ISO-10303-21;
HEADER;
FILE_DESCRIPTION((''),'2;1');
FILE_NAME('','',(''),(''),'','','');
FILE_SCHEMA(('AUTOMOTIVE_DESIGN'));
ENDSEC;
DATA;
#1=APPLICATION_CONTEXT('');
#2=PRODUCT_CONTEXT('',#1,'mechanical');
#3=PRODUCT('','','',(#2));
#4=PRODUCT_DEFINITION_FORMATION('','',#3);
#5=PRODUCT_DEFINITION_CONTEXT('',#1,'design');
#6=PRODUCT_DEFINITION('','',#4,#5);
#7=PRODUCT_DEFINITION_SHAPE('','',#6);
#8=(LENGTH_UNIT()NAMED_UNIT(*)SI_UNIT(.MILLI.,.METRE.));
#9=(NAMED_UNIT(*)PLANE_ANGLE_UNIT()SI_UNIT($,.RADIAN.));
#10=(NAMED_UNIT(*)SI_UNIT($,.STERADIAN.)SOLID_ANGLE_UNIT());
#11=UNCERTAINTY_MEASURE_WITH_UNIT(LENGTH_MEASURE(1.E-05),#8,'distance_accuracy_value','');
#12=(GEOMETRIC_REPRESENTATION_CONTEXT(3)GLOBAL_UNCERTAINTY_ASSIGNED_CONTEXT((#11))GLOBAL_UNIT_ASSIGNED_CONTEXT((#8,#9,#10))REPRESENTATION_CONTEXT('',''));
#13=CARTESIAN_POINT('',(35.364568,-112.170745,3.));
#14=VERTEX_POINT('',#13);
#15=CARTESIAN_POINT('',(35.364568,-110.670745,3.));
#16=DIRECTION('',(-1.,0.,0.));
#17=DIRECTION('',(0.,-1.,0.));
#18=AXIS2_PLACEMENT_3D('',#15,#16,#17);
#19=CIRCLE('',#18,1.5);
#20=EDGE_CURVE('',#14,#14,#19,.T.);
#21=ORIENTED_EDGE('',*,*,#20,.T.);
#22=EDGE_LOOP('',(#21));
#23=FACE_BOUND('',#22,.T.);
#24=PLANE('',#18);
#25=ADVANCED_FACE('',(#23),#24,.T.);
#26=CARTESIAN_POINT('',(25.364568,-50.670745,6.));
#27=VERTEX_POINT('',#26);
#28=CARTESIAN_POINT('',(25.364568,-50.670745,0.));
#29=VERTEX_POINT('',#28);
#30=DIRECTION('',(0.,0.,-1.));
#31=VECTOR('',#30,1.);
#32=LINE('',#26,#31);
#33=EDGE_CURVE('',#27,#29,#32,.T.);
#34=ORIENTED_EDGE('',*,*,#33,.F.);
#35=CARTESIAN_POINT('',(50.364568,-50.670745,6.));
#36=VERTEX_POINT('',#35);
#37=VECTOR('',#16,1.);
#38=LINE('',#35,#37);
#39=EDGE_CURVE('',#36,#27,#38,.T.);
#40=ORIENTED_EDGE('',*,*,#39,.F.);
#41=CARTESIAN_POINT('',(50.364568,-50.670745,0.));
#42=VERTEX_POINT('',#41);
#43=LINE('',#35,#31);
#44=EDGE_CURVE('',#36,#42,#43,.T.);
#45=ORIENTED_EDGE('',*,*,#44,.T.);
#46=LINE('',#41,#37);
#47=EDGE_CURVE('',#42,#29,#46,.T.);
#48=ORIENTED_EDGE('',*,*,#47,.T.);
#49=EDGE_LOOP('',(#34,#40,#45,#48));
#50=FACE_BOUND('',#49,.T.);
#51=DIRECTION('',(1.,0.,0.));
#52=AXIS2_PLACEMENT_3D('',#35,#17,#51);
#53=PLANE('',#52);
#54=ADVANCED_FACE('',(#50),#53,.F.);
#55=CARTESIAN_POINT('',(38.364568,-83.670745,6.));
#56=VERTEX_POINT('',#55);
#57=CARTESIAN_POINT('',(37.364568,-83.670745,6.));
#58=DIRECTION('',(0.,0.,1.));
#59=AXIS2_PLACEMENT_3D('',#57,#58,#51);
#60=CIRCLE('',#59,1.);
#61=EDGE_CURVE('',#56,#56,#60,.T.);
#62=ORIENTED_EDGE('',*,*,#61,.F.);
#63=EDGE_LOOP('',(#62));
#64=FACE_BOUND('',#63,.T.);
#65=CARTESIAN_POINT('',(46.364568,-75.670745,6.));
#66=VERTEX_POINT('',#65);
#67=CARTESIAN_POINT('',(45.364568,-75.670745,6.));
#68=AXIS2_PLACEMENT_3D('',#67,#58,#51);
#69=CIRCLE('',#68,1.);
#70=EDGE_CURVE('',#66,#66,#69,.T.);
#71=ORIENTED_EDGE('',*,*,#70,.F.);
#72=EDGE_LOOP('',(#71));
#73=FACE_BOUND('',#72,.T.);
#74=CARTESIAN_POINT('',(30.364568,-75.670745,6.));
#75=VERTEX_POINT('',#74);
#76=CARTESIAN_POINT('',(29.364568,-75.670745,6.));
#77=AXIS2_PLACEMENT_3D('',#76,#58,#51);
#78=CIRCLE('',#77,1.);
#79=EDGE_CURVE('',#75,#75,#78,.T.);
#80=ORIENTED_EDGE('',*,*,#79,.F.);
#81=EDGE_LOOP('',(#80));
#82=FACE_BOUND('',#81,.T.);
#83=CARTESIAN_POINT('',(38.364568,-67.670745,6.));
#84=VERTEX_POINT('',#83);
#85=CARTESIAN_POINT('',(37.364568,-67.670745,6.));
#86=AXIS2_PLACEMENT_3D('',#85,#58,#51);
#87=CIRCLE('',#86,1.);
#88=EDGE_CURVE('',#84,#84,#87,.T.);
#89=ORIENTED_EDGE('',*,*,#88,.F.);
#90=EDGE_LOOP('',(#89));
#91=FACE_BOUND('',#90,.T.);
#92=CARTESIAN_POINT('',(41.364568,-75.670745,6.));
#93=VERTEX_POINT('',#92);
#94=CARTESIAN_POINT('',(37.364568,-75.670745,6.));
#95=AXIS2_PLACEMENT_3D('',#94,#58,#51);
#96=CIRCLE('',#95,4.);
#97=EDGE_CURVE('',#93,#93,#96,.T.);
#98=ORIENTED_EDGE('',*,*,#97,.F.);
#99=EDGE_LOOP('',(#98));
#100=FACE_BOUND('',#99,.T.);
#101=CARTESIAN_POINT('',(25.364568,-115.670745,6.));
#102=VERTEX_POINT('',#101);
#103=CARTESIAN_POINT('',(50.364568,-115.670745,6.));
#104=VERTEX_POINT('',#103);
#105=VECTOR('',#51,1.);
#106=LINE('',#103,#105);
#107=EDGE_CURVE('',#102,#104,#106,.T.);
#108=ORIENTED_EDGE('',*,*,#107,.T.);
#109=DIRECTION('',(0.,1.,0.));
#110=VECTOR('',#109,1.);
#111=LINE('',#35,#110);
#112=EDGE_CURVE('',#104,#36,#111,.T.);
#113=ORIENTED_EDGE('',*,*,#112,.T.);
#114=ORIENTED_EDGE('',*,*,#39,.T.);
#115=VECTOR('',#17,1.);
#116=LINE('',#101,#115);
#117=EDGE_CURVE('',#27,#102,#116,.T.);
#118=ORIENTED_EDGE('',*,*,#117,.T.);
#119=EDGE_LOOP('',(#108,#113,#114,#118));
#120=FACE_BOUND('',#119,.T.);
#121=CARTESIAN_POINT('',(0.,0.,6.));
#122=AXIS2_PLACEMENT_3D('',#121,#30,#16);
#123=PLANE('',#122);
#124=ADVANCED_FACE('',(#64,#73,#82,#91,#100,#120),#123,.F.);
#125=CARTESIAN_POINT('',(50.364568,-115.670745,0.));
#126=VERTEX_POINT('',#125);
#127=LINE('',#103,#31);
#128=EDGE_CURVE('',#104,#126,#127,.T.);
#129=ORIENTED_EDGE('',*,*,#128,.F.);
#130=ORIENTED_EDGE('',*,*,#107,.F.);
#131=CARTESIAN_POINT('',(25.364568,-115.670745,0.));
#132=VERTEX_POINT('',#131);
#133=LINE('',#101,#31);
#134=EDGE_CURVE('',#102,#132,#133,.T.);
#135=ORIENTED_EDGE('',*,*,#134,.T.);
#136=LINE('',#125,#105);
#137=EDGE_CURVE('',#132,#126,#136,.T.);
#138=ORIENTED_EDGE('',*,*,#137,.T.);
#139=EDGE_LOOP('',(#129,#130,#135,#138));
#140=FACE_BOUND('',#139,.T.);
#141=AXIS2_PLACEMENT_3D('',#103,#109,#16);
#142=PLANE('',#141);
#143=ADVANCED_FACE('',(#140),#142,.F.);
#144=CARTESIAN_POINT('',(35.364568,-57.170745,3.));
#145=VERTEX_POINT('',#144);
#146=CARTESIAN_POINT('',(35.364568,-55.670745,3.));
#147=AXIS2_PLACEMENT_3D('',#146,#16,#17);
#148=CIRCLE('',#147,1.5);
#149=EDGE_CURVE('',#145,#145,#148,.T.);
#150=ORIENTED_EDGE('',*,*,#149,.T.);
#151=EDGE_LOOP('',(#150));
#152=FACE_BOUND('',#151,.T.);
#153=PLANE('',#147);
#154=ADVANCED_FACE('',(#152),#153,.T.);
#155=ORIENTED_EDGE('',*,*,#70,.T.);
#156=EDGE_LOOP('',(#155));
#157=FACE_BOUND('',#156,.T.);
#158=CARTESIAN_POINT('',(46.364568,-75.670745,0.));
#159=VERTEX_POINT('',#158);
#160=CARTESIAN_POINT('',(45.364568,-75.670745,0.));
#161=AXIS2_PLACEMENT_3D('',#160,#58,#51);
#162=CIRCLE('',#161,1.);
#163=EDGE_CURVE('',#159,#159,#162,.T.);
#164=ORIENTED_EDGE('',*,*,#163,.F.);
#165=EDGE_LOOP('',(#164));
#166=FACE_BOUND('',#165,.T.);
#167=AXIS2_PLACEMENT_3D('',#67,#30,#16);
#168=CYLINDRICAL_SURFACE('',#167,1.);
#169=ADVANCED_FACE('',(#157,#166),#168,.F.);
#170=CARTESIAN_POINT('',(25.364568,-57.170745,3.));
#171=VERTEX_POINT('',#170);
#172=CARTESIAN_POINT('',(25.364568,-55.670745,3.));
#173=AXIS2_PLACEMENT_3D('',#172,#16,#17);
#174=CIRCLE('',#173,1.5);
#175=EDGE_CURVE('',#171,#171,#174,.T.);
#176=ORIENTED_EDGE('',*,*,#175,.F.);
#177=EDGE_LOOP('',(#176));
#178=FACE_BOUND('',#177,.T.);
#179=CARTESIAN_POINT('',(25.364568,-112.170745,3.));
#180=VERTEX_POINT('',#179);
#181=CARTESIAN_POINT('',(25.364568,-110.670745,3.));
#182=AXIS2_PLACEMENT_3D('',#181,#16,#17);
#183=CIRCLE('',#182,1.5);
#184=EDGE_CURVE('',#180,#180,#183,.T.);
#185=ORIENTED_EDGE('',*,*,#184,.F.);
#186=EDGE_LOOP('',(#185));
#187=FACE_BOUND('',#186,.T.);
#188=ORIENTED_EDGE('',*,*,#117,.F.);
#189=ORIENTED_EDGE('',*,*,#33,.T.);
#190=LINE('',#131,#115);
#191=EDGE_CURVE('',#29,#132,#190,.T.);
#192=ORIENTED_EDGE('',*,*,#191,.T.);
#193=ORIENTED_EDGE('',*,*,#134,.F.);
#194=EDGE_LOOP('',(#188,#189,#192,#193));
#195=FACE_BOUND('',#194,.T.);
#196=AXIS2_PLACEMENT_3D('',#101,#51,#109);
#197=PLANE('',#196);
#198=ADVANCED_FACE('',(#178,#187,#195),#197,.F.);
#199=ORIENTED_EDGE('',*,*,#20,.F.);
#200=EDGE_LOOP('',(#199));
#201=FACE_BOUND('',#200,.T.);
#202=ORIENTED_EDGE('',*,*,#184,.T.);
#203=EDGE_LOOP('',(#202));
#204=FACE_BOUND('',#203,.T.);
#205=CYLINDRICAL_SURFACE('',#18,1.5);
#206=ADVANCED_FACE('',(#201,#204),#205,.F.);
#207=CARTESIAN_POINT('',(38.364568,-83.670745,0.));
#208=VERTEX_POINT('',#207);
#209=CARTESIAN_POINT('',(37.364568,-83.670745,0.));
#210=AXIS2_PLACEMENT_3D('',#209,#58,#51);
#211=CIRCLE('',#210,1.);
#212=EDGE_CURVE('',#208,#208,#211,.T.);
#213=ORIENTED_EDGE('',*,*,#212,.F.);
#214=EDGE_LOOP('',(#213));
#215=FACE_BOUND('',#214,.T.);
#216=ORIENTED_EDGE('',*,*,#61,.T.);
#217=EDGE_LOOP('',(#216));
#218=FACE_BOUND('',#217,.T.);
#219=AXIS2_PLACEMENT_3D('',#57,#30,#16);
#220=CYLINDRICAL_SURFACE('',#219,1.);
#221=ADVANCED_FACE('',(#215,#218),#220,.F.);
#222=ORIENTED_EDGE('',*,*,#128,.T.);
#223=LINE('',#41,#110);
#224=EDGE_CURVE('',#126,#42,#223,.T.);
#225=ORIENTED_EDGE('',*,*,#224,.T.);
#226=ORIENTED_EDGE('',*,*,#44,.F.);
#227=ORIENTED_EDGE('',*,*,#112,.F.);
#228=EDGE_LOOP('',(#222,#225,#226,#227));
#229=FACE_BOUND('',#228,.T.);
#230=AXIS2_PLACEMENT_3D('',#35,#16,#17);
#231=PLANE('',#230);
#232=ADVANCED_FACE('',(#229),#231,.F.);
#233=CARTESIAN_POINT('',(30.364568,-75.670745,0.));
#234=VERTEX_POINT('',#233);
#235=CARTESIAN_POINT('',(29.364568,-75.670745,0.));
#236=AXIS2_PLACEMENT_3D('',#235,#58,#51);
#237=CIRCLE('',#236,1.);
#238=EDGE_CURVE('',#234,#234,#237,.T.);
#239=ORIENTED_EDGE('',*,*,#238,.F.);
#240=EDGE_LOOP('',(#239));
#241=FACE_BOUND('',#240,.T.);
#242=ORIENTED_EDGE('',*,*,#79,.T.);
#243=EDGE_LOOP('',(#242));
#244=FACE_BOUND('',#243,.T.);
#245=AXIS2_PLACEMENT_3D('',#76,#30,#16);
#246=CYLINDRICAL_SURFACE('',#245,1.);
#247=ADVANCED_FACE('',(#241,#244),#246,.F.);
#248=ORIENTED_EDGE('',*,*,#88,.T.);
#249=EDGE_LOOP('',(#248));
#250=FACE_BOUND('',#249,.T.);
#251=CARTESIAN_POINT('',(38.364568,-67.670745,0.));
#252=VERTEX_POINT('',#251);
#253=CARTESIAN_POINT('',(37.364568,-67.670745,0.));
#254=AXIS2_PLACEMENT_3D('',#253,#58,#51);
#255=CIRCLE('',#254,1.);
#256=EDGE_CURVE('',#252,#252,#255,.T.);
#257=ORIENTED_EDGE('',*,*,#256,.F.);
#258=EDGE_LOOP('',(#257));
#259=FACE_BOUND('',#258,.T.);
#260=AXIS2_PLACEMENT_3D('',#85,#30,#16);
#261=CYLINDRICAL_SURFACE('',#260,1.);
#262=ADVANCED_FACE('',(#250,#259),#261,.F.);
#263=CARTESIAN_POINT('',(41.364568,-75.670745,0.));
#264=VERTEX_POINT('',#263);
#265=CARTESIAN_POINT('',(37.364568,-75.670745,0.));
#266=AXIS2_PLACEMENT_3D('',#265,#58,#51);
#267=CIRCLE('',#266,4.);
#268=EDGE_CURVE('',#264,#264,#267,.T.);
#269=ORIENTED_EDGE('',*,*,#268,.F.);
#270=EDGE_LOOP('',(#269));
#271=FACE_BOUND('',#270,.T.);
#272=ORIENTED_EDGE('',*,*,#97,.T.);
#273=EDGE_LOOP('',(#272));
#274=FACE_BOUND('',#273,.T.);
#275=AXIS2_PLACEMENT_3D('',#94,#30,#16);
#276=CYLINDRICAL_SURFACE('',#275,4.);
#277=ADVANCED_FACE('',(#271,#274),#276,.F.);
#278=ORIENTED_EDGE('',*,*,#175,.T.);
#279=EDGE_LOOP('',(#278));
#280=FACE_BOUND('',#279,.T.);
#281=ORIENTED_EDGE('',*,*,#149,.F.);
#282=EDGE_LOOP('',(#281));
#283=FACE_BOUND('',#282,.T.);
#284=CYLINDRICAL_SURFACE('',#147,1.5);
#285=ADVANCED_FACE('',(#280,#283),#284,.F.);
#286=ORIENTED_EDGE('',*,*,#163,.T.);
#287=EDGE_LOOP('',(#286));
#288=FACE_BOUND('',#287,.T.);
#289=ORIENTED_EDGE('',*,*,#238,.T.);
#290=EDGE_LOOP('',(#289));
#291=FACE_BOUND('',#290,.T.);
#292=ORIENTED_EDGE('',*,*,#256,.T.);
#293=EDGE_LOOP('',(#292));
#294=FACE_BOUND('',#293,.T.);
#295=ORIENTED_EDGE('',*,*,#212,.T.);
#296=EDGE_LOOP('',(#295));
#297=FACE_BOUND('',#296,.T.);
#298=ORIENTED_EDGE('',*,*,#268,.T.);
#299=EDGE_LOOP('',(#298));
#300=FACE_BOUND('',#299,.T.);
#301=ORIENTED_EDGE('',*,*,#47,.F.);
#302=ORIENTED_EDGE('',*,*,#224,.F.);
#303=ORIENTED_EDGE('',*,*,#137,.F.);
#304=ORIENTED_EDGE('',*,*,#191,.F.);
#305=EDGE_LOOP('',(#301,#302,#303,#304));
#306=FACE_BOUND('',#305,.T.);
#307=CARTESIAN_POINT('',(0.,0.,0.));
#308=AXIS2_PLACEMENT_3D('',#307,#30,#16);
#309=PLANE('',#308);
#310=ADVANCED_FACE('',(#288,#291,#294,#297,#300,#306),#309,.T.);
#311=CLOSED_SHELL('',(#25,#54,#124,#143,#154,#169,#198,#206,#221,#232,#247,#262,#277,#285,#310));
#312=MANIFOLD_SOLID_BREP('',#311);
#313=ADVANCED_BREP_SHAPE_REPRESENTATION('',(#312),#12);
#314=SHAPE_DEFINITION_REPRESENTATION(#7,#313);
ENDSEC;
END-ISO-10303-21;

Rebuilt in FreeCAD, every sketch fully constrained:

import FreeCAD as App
import Part
import Sketcher
Q = App.Units.Quantity


def add_polygon(sketch, points):
    """Adds a closed chain of lines whose ends are joined by coincident constraints."""
    first, n = sketch.GeometryCount, len(points)
    for a, b in zip(points, points[1:] + points[:1]):
        sketch.addGeometry(Part.LineSegment(App.Vector(*a, 0), App.Vector(*b, 0)), False)
    for i in range(n):
        sketch.addConstraint(Sketcher.Constraint("Coincident", first + i, 2, first + (i + 1) % n, 1))

doc = App.newDocument("Part")
body = doc.addObject("PartDesign::Body", "Body")

# Sketch on XY plane
sketch1 = body.newObject("Sketcher::SketchObject", "Sketch")
sketch1.AttachmentSupport = (doc.getObject("XY_Plane"), [""])
sketch1.MapMode = "FlatFace"
add_polygon(sketch1, [(25.364568, -50.670745), (25.364568, -115.670745), (50.364568, -115.670745), (50.364568, -50.670745)])  # lines 0-3
sketch1.addGeometry(Part.Circle(App.Vector(37.364568, -83.670745, 0), App.Vector(0, 0, 1), 1), False)  # 4
sketch1.addGeometry(Part.Circle(App.Vector(29.364568, -75.670745, 0), App.Vector(0, 0, 1), 1), False)  # 5
sketch1.addGeometry(Part.Circle(App.Vector(37.364568, -75.670745, 0), App.Vector(0, 0, 1), 4), False)  # 6
sketch1.addGeometry(Part.Circle(App.Vector(45.364568, -75.670745, 0), App.Vector(0, 0, 1), 1), False)  # 7
sketch1.addGeometry(Part.Circle(App.Vector(37.364568, -67.670745, 0), App.Vector(0, 0, 1), 1), False)  # 8
sketch1.addConstraint([
    Sketcher.Constraint("Vertical", 0),
    Sketcher.Constraint("Horizontal", 1),
    Sketcher.Constraint("Vertical", 2),
    Sketcher.Constraint("Horizontal", 3),
    Sketcher.Constraint("Equal", 4, 5),
    Sketcher.Constraint("Equal", 5, 7),
    Sketcher.Constraint("Equal", 7, 8),
    Sketcher.Constraint("Horizontal", 5, 3, 6, 3),
    Sketcher.Constraint("Horizontal", 6, 3, 7, 3),
    Sketcher.Constraint("Vertical", 4, 3, 6, 3),
    Sketcher.Constraint("Vertical", 6, 3, 8, 3),
    Sketcher.Constraint("Diameter", 4, Q("2 mm")),
    Sketcher.Constraint("Diameter", 6, Q("8 mm")),
    Sketcher.Constraint("DistanceX", 1, 1, 1, 2, Q("25 mm")),
    Sketcher.Constraint("DistanceY", 0, 2, 0, 1, Q("65 mm")),
    Sketcher.Constraint("DistanceX", 5, 3, 4, 3, Q("8 mm")),
    Sketcher.Constraint("DistanceY", 4, 3, 5, 3, Q("8 mm")),
    Sketcher.Constraint("DistanceX", 6, 3, 7, 3, Q("8 mm")),
    Sketcher.Constraint("DistanceY", 6, 3, 8, 3, Q("8 mm")),
    Sketcher.Constraint("DistanceX", 0, 2, 4, 3, Q("12 mm")),
    Sketcher.Constraint("DistanceY", 0, 2, 4, 3, Q("32 mm")),
    Sketcher.Constraint("DistanceX", -1, 1, 4, 3, Q("37.364568 mm")),
    Sketcher.Constraint("DistanceY", 4, 3, -1, 1, Q("83.670745 mm")),
])
pad1 = body.newObject("PartDesign::Pad", "Pad")
pad1.Profile = sketch1
pad1.Length = 6

# Sketch on YZ plane
sketch2 = body.newObject("Sketcher::SketchObject", "Sketch001")
sketch2.AttachmentSupport = (doc.getObject("YZ_Plane"), [""])
sketch2.MapMode = "FlatFace"
sketch2.AttachmentOffset = App.Placement(App.Vector(0, 0, 25.364568), App.Rotation())
sketch2.addGeometry([
    Part.Circle(App.Vector(-55.670745, 3, 0), App.Vector(0, 0, 1), 1.5),
    Part.Circle(App.Vector(-110.670745, 3, 0), App.Vector(0, 0, 1), 1.5),
], False)
sketch2.addConstraint([
    Sketcher.Constraint("Equal", 0, 1),
    Sketcher.Constraint("Horizontal", 0, 3, 1, 3),
    Sketcher.Constraint("Diameter", 0, Q("3 mm")),
    Sketcher.Constraint("DistanceY", -1, 1, 0, 3, Q("3 mm")),
    Sketcher.Constraint("DistanceX", 1, 3, 0, 3, Q("55 mm")),
    Sketcher.Constraint("DistanceX", 0, 3, -1, 1, Q("55.670745 mm")),
])
pocket1 = body.newObject("PartDesign::Pocket", "Pocket")
pocket1.Profile = sketch2
pocket1.Length = 10
pocket1.Reversed = True

doc.recompute()
